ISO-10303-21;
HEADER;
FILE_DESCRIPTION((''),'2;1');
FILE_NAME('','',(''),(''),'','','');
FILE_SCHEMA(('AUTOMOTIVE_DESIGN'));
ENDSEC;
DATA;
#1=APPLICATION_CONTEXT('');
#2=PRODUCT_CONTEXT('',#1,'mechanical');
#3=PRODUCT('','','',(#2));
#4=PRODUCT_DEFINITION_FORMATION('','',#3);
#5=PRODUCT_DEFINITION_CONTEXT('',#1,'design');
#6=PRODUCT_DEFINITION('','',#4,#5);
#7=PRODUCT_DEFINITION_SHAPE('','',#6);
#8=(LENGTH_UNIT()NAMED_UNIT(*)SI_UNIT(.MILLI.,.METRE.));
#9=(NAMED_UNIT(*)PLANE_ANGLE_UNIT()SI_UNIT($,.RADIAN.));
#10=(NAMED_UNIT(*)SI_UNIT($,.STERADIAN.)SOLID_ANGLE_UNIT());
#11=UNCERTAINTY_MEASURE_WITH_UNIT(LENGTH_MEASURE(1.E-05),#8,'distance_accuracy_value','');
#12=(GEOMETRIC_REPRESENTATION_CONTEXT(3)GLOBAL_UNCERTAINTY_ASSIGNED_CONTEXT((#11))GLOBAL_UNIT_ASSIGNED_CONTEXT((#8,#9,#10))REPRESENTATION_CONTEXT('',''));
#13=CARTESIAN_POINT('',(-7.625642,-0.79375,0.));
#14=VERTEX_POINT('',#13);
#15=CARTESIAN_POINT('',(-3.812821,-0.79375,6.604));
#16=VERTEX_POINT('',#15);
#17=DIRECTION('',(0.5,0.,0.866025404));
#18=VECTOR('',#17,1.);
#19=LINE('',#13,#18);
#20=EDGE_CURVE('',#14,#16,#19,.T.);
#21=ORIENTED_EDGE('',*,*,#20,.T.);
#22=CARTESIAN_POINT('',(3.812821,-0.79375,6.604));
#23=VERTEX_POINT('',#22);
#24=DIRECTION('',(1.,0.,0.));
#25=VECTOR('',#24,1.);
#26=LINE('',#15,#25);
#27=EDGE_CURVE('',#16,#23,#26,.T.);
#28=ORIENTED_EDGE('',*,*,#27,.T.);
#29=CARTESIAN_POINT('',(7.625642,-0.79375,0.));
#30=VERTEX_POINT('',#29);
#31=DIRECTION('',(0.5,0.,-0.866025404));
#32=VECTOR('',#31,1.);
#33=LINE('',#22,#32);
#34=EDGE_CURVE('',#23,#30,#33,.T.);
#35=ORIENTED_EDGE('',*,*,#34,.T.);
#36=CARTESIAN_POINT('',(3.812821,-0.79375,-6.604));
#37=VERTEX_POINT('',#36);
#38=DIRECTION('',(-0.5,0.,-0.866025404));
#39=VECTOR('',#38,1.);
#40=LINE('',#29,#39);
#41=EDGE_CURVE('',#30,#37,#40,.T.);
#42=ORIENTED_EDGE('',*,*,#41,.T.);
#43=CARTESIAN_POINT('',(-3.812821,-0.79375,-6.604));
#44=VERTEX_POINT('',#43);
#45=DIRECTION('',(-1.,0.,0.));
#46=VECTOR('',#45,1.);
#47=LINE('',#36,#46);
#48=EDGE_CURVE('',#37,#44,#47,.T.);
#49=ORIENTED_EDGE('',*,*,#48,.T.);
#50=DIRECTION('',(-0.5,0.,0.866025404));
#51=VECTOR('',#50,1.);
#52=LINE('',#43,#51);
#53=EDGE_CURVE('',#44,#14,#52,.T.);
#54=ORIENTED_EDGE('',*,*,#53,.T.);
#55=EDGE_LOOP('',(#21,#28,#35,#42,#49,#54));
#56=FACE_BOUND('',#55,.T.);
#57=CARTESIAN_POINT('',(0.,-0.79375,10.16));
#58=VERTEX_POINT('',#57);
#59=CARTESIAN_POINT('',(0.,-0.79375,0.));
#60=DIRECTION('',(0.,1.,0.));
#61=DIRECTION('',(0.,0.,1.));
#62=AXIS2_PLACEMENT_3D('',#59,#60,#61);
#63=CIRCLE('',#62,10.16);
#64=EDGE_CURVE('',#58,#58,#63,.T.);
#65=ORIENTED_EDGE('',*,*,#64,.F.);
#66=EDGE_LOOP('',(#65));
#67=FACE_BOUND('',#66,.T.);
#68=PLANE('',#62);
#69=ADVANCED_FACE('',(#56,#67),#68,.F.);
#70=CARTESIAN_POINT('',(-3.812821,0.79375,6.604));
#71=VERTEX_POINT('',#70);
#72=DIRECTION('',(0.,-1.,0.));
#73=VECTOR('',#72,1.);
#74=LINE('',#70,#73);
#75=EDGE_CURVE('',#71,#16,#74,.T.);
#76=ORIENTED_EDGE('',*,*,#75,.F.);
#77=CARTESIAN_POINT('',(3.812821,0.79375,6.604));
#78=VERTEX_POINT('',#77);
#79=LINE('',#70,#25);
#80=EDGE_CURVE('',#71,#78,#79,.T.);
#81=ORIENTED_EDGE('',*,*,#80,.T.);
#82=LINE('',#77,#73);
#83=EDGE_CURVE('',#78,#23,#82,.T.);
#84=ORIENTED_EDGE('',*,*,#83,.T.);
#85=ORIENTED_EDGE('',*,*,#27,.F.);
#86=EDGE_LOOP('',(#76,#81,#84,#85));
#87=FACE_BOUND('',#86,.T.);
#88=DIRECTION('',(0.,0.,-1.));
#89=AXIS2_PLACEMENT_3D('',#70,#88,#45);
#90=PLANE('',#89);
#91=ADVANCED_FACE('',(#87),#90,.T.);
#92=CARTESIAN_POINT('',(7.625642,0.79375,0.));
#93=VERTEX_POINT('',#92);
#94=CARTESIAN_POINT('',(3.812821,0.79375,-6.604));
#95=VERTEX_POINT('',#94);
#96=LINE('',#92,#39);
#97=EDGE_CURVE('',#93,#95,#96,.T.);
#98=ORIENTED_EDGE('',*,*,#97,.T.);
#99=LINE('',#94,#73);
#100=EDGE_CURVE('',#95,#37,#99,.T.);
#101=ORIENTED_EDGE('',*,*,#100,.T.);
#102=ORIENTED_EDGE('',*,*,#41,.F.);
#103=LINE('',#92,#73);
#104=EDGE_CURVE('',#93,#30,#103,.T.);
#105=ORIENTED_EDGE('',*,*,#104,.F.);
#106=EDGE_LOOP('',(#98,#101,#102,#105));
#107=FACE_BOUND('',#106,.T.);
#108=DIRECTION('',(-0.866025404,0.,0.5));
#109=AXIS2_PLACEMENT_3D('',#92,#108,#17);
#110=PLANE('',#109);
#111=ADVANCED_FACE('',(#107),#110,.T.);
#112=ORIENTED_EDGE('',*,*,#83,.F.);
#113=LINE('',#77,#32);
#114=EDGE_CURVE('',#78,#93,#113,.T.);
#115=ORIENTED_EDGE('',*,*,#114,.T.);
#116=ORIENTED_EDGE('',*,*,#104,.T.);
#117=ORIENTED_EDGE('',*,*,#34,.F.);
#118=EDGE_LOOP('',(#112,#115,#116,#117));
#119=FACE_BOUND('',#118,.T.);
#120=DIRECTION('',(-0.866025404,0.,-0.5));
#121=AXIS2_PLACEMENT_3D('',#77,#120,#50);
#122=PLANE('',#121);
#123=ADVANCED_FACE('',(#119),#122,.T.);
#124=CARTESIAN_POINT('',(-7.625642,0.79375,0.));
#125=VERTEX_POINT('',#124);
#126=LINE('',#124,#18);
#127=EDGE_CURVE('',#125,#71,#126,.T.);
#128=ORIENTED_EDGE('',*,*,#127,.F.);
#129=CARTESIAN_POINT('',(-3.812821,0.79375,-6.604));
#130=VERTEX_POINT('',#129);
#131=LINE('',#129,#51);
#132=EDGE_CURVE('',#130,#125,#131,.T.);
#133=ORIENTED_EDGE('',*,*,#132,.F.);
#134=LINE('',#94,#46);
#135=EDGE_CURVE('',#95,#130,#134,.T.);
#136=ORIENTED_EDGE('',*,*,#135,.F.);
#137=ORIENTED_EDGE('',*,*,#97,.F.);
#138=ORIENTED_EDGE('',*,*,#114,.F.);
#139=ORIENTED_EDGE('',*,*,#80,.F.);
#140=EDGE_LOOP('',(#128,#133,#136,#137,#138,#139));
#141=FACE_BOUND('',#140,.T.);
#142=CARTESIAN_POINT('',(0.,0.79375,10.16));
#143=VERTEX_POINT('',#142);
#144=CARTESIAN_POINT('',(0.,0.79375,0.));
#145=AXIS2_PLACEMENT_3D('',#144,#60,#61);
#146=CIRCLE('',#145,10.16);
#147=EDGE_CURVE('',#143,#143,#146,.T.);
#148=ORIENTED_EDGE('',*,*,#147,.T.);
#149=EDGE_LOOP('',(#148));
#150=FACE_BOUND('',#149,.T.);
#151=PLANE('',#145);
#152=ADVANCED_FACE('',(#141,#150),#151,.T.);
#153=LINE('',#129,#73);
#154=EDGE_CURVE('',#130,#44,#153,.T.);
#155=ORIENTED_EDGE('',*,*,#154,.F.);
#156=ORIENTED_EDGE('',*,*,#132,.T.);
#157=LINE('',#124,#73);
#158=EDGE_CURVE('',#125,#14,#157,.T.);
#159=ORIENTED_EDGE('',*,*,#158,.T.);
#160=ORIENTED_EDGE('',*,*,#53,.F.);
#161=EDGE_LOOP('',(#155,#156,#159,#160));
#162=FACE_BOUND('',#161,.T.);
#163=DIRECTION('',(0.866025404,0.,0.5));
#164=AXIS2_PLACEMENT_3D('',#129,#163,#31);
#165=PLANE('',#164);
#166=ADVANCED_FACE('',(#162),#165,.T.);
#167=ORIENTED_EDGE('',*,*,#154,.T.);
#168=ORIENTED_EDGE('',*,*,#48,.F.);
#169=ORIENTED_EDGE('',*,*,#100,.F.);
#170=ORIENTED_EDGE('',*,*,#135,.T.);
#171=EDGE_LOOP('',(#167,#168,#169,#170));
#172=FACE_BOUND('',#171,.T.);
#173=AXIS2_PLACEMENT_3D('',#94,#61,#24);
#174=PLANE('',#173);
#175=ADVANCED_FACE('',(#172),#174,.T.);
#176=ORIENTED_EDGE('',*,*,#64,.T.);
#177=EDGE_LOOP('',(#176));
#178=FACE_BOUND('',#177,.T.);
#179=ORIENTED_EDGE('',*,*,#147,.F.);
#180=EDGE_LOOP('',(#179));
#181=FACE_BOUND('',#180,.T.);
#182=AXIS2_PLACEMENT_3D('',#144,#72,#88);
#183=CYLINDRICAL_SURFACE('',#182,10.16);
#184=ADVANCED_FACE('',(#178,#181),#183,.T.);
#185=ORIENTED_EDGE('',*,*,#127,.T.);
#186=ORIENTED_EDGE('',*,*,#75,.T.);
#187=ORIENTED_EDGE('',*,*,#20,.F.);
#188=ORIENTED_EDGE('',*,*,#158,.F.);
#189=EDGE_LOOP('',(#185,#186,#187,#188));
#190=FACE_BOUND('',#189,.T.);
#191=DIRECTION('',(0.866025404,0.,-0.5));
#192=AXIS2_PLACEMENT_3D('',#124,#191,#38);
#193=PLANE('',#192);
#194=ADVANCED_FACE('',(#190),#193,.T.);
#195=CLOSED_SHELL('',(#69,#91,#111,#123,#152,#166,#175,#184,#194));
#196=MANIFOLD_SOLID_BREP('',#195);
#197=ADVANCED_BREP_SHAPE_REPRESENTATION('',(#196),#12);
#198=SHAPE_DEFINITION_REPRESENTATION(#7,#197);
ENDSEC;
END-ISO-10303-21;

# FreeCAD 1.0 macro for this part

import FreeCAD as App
import Part
import Sketcher
from FreeCAD import Vector
Q = App.Units.Quantity

doc = App.newDocument("Part")
body = doc.addObject("PartDesign::Body", "Body")

# Sketch on XZ plane
sketch1 = doc.addObject("Sketcher::SketchObject", "Sketch")
body.addObject(sketch1)
sketch1.AttachmentSupport = (doc.XZ_Plane, [""])
sketch1.MapMode = "FlatFace"
sketch1.addGeometry([
    Part.Circle(Vector(0, 0, 0), Vector(0, 0, 1), 10.16),  # 0
    Part.LineSegment(Vector(3.812821, -6.604, 0), Vector(7.625642, 0, 0)),  # 1
    Part.LineSegment(Vector(7.625642, 0, 0), Vector(3.812821, 6.604, 0)),  # 2
    Part.LineSegment(Vector(3.812821, 6.604, 0), Vector(-3.812821, 6.604, 0)),  # 3
    Part.LineSegment(Vector(-3.812821, 6.604, 0), Vector(-7.625642, 0, 0)),  # 4
    Part.LineSegment(Vector(-7.625642, 0, 0), Vector(-3.812821, -6.604, 0)),  # 5
    Part.LineSegment(Vector(-3.812821, -6.604, 0), Vector(3.812821, -6.604, 0)),  # 6
], False)
sketch1.addConstraint([
    Sketcher.Constraint("Coincident", 1, 2, 2, 1),
    Sketcher.Constraint("Coincident", 2, 2, 3, 1),
    Sketcher.Constraint("Coincident", 3, 2, 4, 1),
    Sketcher.Constraint("Coincident", 4, 2, 5, 1),
    Sketcher.Constraint("Coincident", 5, 2, 6, 1),
    Sketcher.Constraint("Coincident", 6, 2, 1, 1),
    Sketcher.Constraint("Horizontal", 3),
    Sketcher.Constraint("Horizontal", 6),
    Sketcher.Constraint("Coincident", 0, 3, -1, 1),
    Sketcher.Constraint("Symmetric", 1, 2, 4, 2, -1, 1),
    Sketcher.Constraint("Symmetric", 2, 2, 5, 2, -1, 1),
    Sketcher.Constraint("PointOnObject", 1, 2, -1),
    Sketcher.Constraint("Parallel", 1, 4),
    Sketcher.Constraint("Vertical", 3, 2, 5, 2),
    Sketcher.Constraint("Diameter", 0, Q("0.8 in")),
    Sketcher.Constraint("Angle", 1, Q("60 deg")),
    Sketcher.Constraint("DistanceY", -1, 1, 2, 2, Q("0.26 in")),
    Sketcher.Constraint("DistanceX", 3, 2, 3, 1, 7.625642),
])
pad1 = doc.addObject("PartDesign::Pad", "Pad")
body.addObject(pad1)
pad1.Profile = sketch1
pad1.Length = Q("0.0625 in")
pad1.Midplane = True

doc.recompute()
